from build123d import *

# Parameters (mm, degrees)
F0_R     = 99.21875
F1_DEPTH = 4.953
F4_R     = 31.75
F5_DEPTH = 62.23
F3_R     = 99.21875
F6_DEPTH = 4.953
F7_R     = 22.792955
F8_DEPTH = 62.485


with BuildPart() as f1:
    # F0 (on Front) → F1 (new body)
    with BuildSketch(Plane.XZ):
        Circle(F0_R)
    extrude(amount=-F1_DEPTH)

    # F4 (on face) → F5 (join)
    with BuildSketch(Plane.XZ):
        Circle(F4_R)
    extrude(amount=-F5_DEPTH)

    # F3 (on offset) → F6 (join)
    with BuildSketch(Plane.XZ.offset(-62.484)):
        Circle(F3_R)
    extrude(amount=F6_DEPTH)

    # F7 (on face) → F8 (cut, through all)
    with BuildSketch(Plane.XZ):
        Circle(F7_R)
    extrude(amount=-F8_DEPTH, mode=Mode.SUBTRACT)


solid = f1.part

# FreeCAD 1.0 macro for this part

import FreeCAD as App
import Part
import Sketcher
from FreeCAD import Vector
Q = App.Units.Quantity

doc = App.newDocument("Part")
body = doc.addObject("PartDesign::Body", "Body")

sketch1 = body.newObject("Sketcher::SketchObject", "Sketch")
sketch1.AttachmentSupport = (doc.getObject("XZ_Plane"), [""])
sketch1.MapMode = "FlatFace"
sketch1.addGeometry(Part.Circle(Vector(0, 0, 0), Vector(0, 0, 1), 99), False)
sketch1.addConstraint(Sketcher.Constraint("Coincident", 0, 3, -1, 1))
sketch1.addConstraint(Sketcher.Constraint("Diameter", 0, Q("7.8125 in")))
pad1 = body.newObject("PartDesign::Pad", "Pad")
pad1.Profile = sketch1
pad1.Length = Q("0.195 in")
pad1.Reversed = True

sketch2 = body.newObject("Sketcher::SketchObject", "Sketch001")
sketch2.AttachmentSupport = (doc.getObject("XZ_Plane"), [""])
sketch2.MapMode = "FlatFace"
sketch2.addGeometry(Part.Circle(Vector(0, 0, 0), Vector(0, 0, 1), 32), False)
sketch2.addConstraint(Sketcher.Constraint("Coincident", 0, 3, -1, 1))
sketch2.addConstraint(Sketcher.Constraint("Diameter", 0, Q("2.5 in")))
pad2 = body.newObject("PartDesign::Pad", "Pad001")
pad2.Profile = sketch2
pad2.Length = Q("2.45 in")
pad2.Reversed = True

sketch3 = body.newObject("Sketcher::SketchObject", "Sketch002")
sketch3.AttachmentSupport = (doc.getObject("XZ_Plane"), [""])
sketch3.MapMode = "FlatFace"
sketch3.AttachmentOffset = App.Placement(Vector(0, 0, -2.46 * 25.4), App.Rotation())
sketch3.addGeometry(Part.Circle(Vector(0, 0, 0), Vector(0, 0, 1), 99), False)
sketch3.addConstraint(Sketcher.Constraint("Coincident", 0, 3, -1, 1))
sketch3.addConstraint(Sketcher.Constraint("Diameter", 0, Q("7.8125 in")))
pad3 = body.newObject("PartDesign::Pad", "Pad002")
pad3.Profile = sketch3
pad3.Length = Q("0.195 in")

sketch4 = body.newObject("Sketcher::SketchObject", "Sketch003")
sketch4.AttachmentSupport = (doc.getObject("XZ_Plane"), [""])
sketch4.MapMode = "FlatFace"
sketch4.addGeometry(Part.Circle(Vector(0, 0, 0), Vector(0, 0, 1), 23), False)
sketch4.addConstraint(Sketcher.Constraint("Coincident", 0, 3, -1, 1))
sketch4.addConstraint(Sketcher.Constraint("Diameter", 0, 45.58591))
pocket1 = body.newObject("PartDesign::Pocket", "Pocket")
pocket1.Profile = sketch4
pocket1.Type = "ThroughAll"

doc.recompute()
